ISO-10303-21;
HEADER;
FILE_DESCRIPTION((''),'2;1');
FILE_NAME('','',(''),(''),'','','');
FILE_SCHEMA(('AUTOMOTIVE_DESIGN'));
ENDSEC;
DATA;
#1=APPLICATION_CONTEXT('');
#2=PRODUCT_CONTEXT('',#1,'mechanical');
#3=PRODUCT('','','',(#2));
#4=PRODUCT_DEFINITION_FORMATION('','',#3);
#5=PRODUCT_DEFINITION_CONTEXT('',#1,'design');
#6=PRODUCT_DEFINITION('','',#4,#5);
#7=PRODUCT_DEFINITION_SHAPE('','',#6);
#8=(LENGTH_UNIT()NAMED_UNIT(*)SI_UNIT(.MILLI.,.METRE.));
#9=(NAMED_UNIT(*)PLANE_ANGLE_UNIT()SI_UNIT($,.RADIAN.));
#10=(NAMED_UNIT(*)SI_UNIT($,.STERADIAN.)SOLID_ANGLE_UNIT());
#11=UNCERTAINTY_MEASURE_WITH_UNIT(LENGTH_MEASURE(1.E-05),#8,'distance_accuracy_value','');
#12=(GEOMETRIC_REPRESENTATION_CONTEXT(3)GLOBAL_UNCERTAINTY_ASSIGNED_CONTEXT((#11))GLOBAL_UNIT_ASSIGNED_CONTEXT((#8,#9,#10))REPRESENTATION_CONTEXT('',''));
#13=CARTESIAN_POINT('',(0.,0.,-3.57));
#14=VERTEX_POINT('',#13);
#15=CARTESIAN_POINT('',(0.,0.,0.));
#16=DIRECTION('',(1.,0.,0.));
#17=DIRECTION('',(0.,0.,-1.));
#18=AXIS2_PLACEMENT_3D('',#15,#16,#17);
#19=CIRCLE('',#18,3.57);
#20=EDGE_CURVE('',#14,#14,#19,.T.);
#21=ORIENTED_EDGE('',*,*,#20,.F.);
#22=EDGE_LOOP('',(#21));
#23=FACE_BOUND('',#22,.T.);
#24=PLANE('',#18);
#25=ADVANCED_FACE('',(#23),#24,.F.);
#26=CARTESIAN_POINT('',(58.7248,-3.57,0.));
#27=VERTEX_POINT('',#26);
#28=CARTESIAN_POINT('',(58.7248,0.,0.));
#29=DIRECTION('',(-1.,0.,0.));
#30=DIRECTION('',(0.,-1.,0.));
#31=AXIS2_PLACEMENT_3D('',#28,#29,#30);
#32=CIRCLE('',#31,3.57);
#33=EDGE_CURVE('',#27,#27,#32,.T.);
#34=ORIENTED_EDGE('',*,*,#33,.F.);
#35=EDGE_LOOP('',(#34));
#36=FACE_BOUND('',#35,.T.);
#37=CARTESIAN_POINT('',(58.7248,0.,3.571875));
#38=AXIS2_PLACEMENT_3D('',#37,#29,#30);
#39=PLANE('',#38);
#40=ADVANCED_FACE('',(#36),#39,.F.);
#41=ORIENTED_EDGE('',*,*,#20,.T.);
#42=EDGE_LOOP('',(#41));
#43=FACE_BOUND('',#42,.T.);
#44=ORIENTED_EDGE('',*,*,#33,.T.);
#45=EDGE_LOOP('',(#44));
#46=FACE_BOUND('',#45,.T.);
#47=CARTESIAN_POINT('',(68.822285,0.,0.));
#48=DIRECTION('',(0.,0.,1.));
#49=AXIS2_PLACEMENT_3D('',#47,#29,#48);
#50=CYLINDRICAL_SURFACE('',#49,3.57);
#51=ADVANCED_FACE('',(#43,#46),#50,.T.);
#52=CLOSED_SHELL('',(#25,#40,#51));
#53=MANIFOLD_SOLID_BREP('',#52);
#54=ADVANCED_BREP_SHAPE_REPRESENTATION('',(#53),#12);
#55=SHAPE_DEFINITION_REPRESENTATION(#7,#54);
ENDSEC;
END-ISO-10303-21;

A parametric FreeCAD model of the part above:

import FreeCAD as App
import Part
import Sketcher

V = App.Vector
Q = App.Units.Quantity

doc = App.newDocument("Part")
body = doc.addObject("PartDesign::Body", "Body")

# Sketch on YZ plane
sketch1 = body.newObject("Sketcher::SketchObject", "Sketch")
sketch1.AttachmentSupport = (doc.getObject("YZ_Plane"), [""])
sketch1.MapMode = "FlatFace"
sketch1.addGeometry(Part.Circle(V(0, 0, 0), V(0, 0, 1), 3.6), False)
sketch1.addConstraint(Sketcher.Constraint("Coincident", 0, 3, -1, 1))
sketch1.addConstraint(Sketcher.Constraint("Diameter", 0, Q("7.14 mm")))
pad1 = body.newObject("PartDesign::Pad", "Pad")
pad1.Profile = sketch1
pad1.Length = Q("2.312 in")

doc.recompute()
